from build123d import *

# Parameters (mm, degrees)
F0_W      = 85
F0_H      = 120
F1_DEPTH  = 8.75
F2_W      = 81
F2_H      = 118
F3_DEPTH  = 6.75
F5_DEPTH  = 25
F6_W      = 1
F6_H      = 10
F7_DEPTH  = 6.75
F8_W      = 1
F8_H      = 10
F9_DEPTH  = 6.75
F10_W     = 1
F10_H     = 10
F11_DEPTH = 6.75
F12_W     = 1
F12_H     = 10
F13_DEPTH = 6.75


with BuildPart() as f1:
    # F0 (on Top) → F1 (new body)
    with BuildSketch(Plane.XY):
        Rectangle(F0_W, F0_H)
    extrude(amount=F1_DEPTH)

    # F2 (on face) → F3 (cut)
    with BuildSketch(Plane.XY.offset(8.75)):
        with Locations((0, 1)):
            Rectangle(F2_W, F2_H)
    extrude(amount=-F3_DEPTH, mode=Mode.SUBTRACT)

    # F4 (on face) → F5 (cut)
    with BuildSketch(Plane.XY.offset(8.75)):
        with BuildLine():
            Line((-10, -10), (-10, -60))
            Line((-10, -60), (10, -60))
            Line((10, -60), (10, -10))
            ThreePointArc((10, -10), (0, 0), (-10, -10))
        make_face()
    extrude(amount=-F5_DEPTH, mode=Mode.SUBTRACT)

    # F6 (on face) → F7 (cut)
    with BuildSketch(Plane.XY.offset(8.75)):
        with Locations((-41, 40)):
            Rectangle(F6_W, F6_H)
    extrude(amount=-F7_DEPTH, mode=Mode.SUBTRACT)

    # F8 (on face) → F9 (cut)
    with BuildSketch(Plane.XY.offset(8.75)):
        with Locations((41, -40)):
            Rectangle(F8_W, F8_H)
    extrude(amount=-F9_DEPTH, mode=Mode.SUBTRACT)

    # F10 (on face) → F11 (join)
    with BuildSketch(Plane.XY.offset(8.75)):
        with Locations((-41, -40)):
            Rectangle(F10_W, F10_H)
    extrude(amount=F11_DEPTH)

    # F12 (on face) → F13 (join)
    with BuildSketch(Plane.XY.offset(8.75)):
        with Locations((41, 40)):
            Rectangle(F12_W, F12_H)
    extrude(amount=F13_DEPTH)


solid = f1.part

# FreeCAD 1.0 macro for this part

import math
import FreeCAD as App
import Part
import Sketcher

doc = App.newDocument("Part")
body = doc.addObject("PartDesign::Body", "Body")

sketch1 = body.newObject("Sketcher::SketchObject", "Sketch")
sketch1.AttachmentSupport = (doc.getObject("XY_Plane"), [""])
sketch1.MapMode = "FlatFace"
sketch1.addGeometry([
    Part.LineSegment(App.Vector(-42, 60, 0), App.Vector(-42, -60, 0)),
    Part.LineSegment(App.Vector(-42, -60, 0), App.Vector(42, -60, 0)),
    Part.LineSegment(App.Vector(42, -60, 0), App.Vector(42, 60, 0)),
    Part.LineSegment(App.Vector(42, 60, 0), App.Vector(-42, 60, 0)),
], False)
sketch1.addConstraint([
    Sketcher.Constraint("Coincident", 0, 2, 1, 1),
    Sketcher.Constraint("Coincident", 1, 2, 2, 1),
    Sketcher.Constraint("Coincident", 2, 2, 3, 1),
    Sketcher.Constraint("Coincident", 3, 2, 0, 1),
    Sketcher.Constraint("Vertical", 0),
    Sketcher.Constraint("Horizontal", 1),
    Sketcher.Constraint("Vertical", 2),
    Sketcher.Constraint("Horizontal", 3),
    Sketcher.Constraint("Symmetric", 0, 2, 2, 2, -1, 1),
    Sketcher.Constraint("DistanceX", 1, 1, 1, 2, 85.0),
    Sketcher.Constraint("DistanceY", 0, 2, 0, 1, 120.0),
])
pad1 = body.newObject("PartDesign::Pad", "Pad")
pad1.Profile = sketch1
pad1.Length = 8.75

sketch2 = body.newObject("Sketcher::SketchObject", "Sketch001")
sketch2.AttachmentSupport = (doc.getObject("XY_Plane"), [""])
sketch2.MapMode = "FlatFace"
sketch2.AttachmentOffset = App.Placement(App.Vector(0, 0, 8.75), App.Rotation())
sketch2.addGeometry([
    Part.LineSegment(App.Vector(-40, 60, 0), App.Vector(-40, -58, 0)),
    Part.LineSegment(App.Vector(-40, -58, 0), App.Vector(40, -58, 0)),
    Part.LineSegment(App.Vector(40, -58, 0), App.Vector(40, 60, 0)),
    Part.LineSegment(App.Vector(40, 60, 0), App.Vector(-40, 60, 0)),
], False)
sketch2.addConstraint([
    Sketcher.Constraint("Coincident", 0, 2, 1, 1),
    Sketcher.Constraint("Coincident", 1, 2, 2, 1),
    Sketcher.Constraint("Coincident", 2, 2, 3, 1),
    Sketcher.Constraint("Coincident", 3, 2, 0, 1),
    Sketcher.Constraint("Vertical", 0),
    Sketcher.Constraint("Horizontal", 1),
    Sketcher.Constraint("Vertical", 2),
    Sketcher.Constraint("Horizontal", 3),
    Sketcher.Constraint("DistanceX", 1, 1, 1, 2, 81.0),
    Sketcher.Constraint("DistanceY", 0, 2, 0, 1, 118.0),
    Sketcher.Constraint("DistanceY", 0, 2, -1, 1, 58.0),
    Sketcher.Constraint("DistanceX", 0, 2, -1, 1, 40.5),
])
pocket1 = body.newObject("PartDesign::Pocket", "Pocket")
pocket1.Profile = sketch2
pocket1.Length = 6.75

sketch3 = body.newObject("Sketcher::SketchObject", "Sketch002")
sketch3.AttachmentSupport = (doc.getObject("XY_Plane"), [""])
sketch3.MapMode = "FlatFace"
sketch3.AttachmentOffset = App.Placement(App.Vector(0, 0, 8.75), App.Rotation())
sketch3.addGeometry([
    Part.LineSegment(App.Vector(-10, -10, 0), App.Vector(-10, -60, 0)),
    Part.LineSegment(App.Vector(-10, -60, 0), App.Vector(10, -60, 0)),
    Part.LineSegment(App.Vector(10, -60, 0), App.Vector(10, -10, 0)),
    Part.ArcOfCircle(Part.Circle(App.Vector(0, -10, 0), App.Vector(0, 0, 1), 10), math.radians(0), math.radians(180)),
], False)
sketch3.addConstraint([
    Sketcher.Constraint("Coincident", 0, 2, 1, 1),
    Sketcher.Constraint("Coincident", 1, 2, 2, 1),
    Sketcher.Constraint("Tangent", 2, 2, 3, 1),
    Sketcher.Constraint("Tangent", 3, 2, 0, 1),
    Sketcher.Constraint("Vertical", 0),
    Sketcher.Constraint("Horizontal", 1),
    Sketcher.Constraint("Vertical", 2),
    Sketcher.Constraint("PointOnObject", 3, 3, -2),
    Sketcher.Constraint("Radius", 3, 10.0),
    Sketcher.Constraint("DistanceY", 0, 2, 0, 1, 50.0),
    Sketcher.Constraint("DistanceY", 3, 3, -1, 1, 10.0),
])
pocket2 = body.newObject("PartDesign::Pocket", "Pocket001")
pocket2.Profile = sketch3
pocket2.Length = 25

sketch4 = body.newObject("Sketcher::SketchObject", "Sketch003")
sketch4.AttachmentSupport = (doc.getObject("XY_Plane"), [""])
sketch4.MapMode = "FlatFace"
sketch4.AttachmentOffset = App.Placement(App.Vector(0, 0, 8.75), App.Rotation())
sketch4.addGeometry([
    Part.LineSegment(App.Vector(-41.5, 45, 0), App.Vector(-41.5, 35, 0)),
    Part.LineSegment(App.Vector(-41.5, 35, 0), App.Vector(-40.5, 35, 0)),
    Part.LineSegment(App.Vector(-40.5, 35, 0), App.Vector(-40.5, 45, 0)),
    Part.LineSegment(App.Vector(-40.5, 45, 0), App.Vector(-41.5, 45, 0)),
], False)
sketch4.addConstraint([
    Sketcher.Constraint("Coincident", 0, 2, 1, 1),
    Sketcher.Constraint("Coincident", 1, 2, 2, 1),
    Sketcher.Constraint("Coincident", 2, 2, 3, 1),
    Sketcher.Constraint("Coincident", 3, 2, 0, 1),
    Sketcher.Constraint("Vertical", 0),
    Sketcher.Constraint("Horizontal", 1),
    Sketcher.Constraint("Vertical", 2),
    Sketcher.Constraint("Horizontal", 3),
    Sketcher.Constraint("DistanceX", 1, 1, 1, 2, 1.0),
    Sketcher.Constraint("DistanceY", 0, 2, 0, 1, 10.0),
    Sketcher.Constraint("DistanceY", -1, 1, 0, 2, 35.0),
    Sketcher.Constraint("DistanceX", 0, 2, -1, 1, 41.5),
])
pocket3 = body.newObject("PartDesign::Pocket", "Pocket002")
pocket3.Profile = sketch4
pocket3.Length = 6.75

sketch5 = body.newObject("Sketcher::SketchObject", "Sketch004")
sketch5.AttachmentSupport = (doc.getObject("XY_Plane"), [""])
sketch5.MapMode = "FlatFace"
sketch5.AttachmentOffset = App.Placement(App.Vector(0, 0, 8.75), App.Rotation())
sketch5.addGeometry([
    Part.LineSegment(App.Vector(40.5, -35, 0), App.Vector(40.5, -45, 0)),
    Part.LineSegment(App.Vector(40.5, -45, 0), App.Vector(41.5, -45, 0)),
    Part.LineSegment(App.Vector(41.5, -45, 0), App.Vector(41.5, -35, 0)),
    Part.LineSegment(App.Vector(41.5, -35, 0), App.Vector(40.5, -35, 0)),
], False)
sketch5.addConstraint([
    Sketcher.Constraint("Coincident", 0, 2, 1, 1),
    Sketcher.Constraint("Coincident", 1, 2, 2, 1),
    Sketcher.Constraint("Coincident", 2, 2, 3, 1),
    Sketcher.Constraint("Coincident", 3, 2, 0, 1),
    Sketcher.Constraint("Vertical", 0),
    Sketcher.Constraint("Horizontal", 1),
    Sketcher.Constraint("Vertical", 2),
    Sketcher.Constraint("Horizontal", 3),
    Sketcher.Constraint("DistanceX", 1, 1, 1, 2, 1.0),
    Sketcher.Constraint("DistanceY", 0, 2, 0, 1, 10.0),
    Sketcher.Constraint("DistanceY", 0, 2, -1, 1, 45.0),
    Sketcher.Constraint("DistanceX", -1, 1, 0, 2, 40.5),
])
pocket4 = body.newObject("PartDesign::Pocket", "Pocket003")
pocket4.Profile = sketch5
pocket4.Length = 6.75

sketch6 = body.newObject("Sketcher::SketchObject", "Sketch005")
sketch6.AttachmentSupport = (doc.getObject("XY_Plane"), [""])
sketch6.MapMode = "FlatFace"
sketch6.AttachmentOffset = App.Placement(App.Vector(0, 0, 8.75), App.Rotation())
sketch6.addGeometry([
    Part.LineSegment(App.Vector(-41.5, -35, 0), App.Vector(-41.5, -45, 0)),
    Part.LineSegment(App.Vector(-41.5, -45, 0), App.Vector(-40.5, -45, 0)),
    Part.LineSegment(App.Vector(-40.5, -45, 0), App.Vector(-40.5, -35, 0)),
    Part.LineSegment(App.Vector(-40.5, -35, 0), App.Vector(-41.5, -35, 0)),
], False)
sketch6.addConstraint([
    Sketcher.Constraint("Coincident", 0, 2, 1, 1),
    Sketcher.Constraint("Coincident", 1, 2, 2, 1),
    Sketcher.Constraint("Coincident", 2, 2, 3, 1),
    Sketcher.Constraint("Coincident", 3, 2, 0, 1),
    Sketcher.Constraint("Vertical", 0),
    Sketcher.Constraint("Horizontal", 1),
    Sketcher.Constraint("Vertical", 2),
    Sketcher.Constraint("Horizontal", 3),
    Sketcher.Constraint("DistanceX", 1, 1, 1, 2, 1.0),
    Sketcher.Constraint("DistanceY", 0, 2, 0, 1, 10.0),
    Sketcher.Constraint("DistanceY", 0, 2, -1, 1, 45.0),
    Sketcher.Constraint("DistanceX", 0, 2, -1, 1, 41.5),
])
pad2 = body.newObject("PartDesign::Pad", "Pad001")
pad2.Profile = sketch6
pad2.Length = 6.75

sketch7 = body.newObject("Sketcher::SketchObject", "Sketch006")
sketch7.AttachmentSupport = (doc.getObject("XY_Plane"), [""])
sketch7.MapMode = "FlatFace"
sketch7.AttachmentOffset = App.Placement(App.Vector(0, 0, 8.75), App.Rotation())
sketch7.addGeometry([
    Part.LineSegment(App.Vector(40.5, 45, 0), App.Vector(40.5, 35, 0)),
    Part.LineSegment(App.Vector(40.5, 35, 0), App.Vector(41.5, 35, 0)),
    Part.LineSegment(App.Vector(41.5, 35, 0), App.Vector(41.5, 45, 0)),
    Part.LineSegment(App.Vector(41.5, 45, 0), App.Vector(40.5, 45, 0)),
], False)
sketch7.addConstraint([
    Sketcher.Constraint("Coincident", 0, 2, 1, 1),
    Sketcher.Constraint("Coincident", 1, 2, 2, 1),
    Sketcher.Constraint("Coincident", 2, 2, 3, 1),
    Sketcher.Constraint("Coincident", 3, 2, 0, 1),
    Sketcher.Constraint("Vertical", 0),
    Sketcher.Constraint("Horizontal", 1),
    Sketcher.Constraint("Vertical", 2),
    Sketcher.Constraint("Horizontal", 3),
    Sketcher.Constraint("DistanceX", 1, 1, 1, 2, 1.0),
    Sketcher.Constraint("DistanceY", 0, 2, 0, 1, 10.0),
    Sketcher.Constraint("DistanceY", -1, 1, 0, 2, 35.0),
    Sketcher.Constraint("DistanceX", -1, 1, 0, 2, 40.5),
])
pad3 = body.newObject("PartDesign::Pad", "Pad002")
pad3.Profile = sketch7
pad3.Length = 6.75

doc.recompute()
